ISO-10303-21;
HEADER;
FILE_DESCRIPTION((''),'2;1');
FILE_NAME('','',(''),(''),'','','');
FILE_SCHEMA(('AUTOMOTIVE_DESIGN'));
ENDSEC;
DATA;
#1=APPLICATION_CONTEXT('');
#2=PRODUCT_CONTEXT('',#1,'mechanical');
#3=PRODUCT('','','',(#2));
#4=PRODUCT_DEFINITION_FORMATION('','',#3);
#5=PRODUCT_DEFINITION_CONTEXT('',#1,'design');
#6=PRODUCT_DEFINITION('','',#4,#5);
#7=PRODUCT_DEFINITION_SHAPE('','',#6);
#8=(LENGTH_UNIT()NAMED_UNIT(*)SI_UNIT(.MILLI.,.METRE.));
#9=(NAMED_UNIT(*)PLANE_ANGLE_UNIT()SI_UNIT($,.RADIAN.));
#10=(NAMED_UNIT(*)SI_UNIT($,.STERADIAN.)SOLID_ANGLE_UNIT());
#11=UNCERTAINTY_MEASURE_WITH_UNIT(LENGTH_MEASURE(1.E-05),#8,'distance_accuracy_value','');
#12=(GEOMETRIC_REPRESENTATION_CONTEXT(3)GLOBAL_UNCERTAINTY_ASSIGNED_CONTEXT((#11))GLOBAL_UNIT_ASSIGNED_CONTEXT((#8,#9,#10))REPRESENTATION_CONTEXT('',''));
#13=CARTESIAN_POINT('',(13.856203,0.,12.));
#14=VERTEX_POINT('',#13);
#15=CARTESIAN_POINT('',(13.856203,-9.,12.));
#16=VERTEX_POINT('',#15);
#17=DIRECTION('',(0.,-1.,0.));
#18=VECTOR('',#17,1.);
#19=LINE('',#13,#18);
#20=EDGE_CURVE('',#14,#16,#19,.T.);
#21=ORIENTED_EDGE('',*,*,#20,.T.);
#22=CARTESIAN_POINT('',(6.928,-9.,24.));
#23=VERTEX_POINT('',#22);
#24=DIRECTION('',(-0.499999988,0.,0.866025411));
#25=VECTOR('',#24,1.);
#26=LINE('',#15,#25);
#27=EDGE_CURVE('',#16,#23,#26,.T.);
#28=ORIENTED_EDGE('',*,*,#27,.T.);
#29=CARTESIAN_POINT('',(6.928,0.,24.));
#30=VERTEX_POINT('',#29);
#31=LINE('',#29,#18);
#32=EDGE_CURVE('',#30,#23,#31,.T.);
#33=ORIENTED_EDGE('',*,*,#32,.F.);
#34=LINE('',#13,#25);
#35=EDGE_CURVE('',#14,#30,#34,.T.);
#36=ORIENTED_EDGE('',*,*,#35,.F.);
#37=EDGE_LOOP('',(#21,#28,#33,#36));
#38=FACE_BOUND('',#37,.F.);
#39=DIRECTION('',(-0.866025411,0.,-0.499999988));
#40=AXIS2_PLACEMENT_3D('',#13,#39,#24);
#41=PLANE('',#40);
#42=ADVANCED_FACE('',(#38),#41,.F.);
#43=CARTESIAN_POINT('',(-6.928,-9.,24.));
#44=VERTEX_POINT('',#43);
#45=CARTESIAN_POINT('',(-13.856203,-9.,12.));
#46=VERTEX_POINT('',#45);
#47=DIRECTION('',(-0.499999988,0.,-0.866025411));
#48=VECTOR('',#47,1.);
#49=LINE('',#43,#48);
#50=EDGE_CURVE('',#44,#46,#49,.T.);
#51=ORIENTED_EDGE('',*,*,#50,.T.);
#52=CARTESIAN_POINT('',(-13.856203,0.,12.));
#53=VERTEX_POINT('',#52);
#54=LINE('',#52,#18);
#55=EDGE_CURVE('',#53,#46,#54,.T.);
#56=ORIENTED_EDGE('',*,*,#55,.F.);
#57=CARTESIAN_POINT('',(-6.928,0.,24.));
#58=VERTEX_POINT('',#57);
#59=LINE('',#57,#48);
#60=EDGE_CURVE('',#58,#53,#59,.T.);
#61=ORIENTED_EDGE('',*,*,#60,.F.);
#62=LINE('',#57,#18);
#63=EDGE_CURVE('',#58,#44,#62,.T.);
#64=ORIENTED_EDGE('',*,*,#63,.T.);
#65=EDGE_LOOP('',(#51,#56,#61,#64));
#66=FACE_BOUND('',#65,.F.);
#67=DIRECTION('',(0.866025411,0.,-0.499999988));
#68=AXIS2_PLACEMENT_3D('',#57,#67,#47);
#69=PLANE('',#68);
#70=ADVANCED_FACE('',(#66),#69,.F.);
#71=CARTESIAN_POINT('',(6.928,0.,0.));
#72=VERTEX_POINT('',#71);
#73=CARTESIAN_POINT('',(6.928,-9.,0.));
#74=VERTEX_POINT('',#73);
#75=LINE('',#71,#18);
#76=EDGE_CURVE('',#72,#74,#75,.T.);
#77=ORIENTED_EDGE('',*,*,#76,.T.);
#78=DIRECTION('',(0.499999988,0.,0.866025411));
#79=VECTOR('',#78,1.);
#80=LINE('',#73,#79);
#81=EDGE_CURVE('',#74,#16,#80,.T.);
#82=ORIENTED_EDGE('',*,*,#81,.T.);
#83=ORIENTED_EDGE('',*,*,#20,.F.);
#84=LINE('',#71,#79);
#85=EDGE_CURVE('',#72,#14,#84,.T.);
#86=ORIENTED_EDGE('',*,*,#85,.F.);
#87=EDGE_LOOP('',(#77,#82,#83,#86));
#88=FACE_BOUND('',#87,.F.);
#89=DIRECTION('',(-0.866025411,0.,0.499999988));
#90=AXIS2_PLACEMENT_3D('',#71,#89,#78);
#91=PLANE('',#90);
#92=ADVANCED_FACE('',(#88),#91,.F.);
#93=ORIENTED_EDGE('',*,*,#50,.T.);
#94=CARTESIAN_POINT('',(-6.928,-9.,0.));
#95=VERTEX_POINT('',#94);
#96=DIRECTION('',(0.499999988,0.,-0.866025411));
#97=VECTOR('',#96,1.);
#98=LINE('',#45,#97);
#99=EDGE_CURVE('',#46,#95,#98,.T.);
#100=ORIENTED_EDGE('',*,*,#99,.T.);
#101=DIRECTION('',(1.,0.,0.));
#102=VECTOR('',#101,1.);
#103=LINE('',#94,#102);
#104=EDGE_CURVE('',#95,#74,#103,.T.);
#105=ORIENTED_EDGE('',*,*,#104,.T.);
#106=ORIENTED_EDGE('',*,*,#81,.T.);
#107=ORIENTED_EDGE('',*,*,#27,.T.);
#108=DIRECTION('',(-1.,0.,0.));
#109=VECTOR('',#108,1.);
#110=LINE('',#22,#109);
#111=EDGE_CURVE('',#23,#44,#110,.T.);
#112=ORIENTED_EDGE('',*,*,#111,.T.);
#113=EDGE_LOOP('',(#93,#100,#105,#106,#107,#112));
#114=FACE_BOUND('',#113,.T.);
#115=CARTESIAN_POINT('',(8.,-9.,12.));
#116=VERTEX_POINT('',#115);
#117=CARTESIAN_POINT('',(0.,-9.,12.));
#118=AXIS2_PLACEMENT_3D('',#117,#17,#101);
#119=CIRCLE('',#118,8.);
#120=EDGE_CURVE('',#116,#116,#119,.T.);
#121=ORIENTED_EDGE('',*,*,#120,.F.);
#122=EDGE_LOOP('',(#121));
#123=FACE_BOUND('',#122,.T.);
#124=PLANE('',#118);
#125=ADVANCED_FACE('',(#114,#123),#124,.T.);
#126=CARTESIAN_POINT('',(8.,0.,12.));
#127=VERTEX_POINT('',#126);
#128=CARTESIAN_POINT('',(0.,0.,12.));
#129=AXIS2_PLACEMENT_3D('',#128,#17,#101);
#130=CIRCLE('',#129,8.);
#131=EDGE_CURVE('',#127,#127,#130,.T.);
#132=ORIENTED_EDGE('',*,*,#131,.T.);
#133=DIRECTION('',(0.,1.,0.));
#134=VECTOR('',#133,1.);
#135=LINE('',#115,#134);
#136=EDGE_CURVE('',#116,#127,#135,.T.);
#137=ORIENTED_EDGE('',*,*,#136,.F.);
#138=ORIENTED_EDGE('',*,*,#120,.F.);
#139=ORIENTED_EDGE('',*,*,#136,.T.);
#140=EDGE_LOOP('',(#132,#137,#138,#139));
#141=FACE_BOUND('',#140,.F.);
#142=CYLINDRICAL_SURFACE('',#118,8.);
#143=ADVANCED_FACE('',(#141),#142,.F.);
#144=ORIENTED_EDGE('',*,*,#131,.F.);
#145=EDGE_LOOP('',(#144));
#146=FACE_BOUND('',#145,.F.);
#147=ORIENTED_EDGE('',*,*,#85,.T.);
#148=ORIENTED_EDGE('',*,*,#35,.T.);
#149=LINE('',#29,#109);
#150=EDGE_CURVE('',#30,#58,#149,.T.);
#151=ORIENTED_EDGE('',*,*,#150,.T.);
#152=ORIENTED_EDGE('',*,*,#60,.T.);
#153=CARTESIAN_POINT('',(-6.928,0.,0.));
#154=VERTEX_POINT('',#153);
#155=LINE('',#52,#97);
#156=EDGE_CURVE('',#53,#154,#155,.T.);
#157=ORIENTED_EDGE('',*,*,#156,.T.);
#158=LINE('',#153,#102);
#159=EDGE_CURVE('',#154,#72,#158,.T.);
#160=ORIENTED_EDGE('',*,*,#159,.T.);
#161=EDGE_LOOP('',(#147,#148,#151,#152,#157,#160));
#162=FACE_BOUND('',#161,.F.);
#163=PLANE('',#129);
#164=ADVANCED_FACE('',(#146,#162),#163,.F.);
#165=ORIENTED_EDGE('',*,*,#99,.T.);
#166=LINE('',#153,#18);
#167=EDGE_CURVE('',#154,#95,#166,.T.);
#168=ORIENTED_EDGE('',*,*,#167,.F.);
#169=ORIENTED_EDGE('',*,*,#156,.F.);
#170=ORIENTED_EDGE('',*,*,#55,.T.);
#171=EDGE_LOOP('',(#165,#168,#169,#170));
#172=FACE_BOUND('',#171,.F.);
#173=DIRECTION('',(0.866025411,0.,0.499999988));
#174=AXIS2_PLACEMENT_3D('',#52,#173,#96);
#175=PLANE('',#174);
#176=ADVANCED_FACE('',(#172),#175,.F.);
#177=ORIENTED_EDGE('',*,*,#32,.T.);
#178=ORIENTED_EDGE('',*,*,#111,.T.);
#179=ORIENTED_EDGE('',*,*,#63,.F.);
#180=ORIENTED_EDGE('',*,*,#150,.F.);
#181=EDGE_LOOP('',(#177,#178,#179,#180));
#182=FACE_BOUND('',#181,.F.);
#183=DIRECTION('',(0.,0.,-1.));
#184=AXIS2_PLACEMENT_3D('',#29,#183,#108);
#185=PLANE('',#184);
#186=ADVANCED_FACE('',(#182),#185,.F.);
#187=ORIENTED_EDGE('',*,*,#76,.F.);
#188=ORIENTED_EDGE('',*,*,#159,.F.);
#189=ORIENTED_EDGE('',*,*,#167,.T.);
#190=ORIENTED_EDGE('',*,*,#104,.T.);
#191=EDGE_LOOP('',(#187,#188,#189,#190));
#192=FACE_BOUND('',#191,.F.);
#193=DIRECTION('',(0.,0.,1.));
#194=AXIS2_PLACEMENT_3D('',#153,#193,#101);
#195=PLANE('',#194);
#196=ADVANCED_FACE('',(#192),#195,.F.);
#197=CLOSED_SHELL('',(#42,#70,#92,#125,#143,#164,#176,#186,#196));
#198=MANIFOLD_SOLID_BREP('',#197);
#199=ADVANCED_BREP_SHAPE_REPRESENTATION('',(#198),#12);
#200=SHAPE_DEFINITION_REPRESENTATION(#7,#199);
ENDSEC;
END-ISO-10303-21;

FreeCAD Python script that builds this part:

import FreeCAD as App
import Part
import Sketcher

V = App.Vector
Q = App.Units.Quantity

doc = App.newDocument("Part")
params = doc.addObject("Spreadsheet::Sheet", "Params")
for row, (alias, value) in enumerate([
    ("pad1_length", "9 mm"),
    ("sketch2_diameter", "16 mm"),
], start=1):
    params.set(f"A{row}", alias)
    params.set(f"B{row}", "=" + value)
    params.setAlias(f"B{row}", alias)

body = doc.addObject("PartDesign::Body", "Body")

# Sketch on XZ plane
sketch1 = body.newObject("Sketcher::SketchObject", "Sketch")
sketch1.AttachmentSupport = (doc.getObject("XZ_Plane"), [""])
sketch1.MapMode = "FlatFace"
sketch1.addGeometry([
    Part.LineSegment(V(-14, 12, 0), V(-7, 0, 0)),  # 0
    Part.LineSegment(V(-7, 0, 0), V(7, 0, 0)),  # 1
    Part.LineSegment(V(7, 0, 0), V(14, 12, 0)),  # 2
    Part.LineSegment(V(14, 12, 0), V(7, 24, 0)),  # 3
    Part.LineSegment(V(7, 24, 0), V(-7, 24, 0)),  # 4
    Part.LineSegment(V(-7, 24, 0), V(-14, 12, 0)),  # 5
], False)
sketch1.addConstraint([
    Sketcher.Constraint("Coincident", 0, 2, 1, 1),
    Sketcher.Constraint("Coincident", 1, 2, 2, 1),
    Sketcher.Constraint("Coincident", 2, 2, 3, 1),
    Sketcher.Constraint("Coincident", 3, 2, 4, 1),
    Sketcher.Constraint("Coincident", 4, 2, 5, 1),
    Sketcher.Constraint("Coincident", 5, 2, 0, 1),
    Sketcher.Constraint("Horizontal", 1),
    Sketcher.Constraint("Horizontal", 4),
    Sketcher.Constraint("Symmetric", 0, 2, 1, 2, -1, 1),
    Sketcher.Constraint("Symmetric", 2, 2, 5, 2, -2),
    Sketcher.Constraint("Parallel", 0, 3),
    Sketcher.Constraint("Parallel", 2, 5),
    Sketcher.Constraint("Vertical", 1, 2, 3, 2),
    Sketcher.Constraint("Angle", 0, Q("-60.000001 deg")),
    Sketcher.Constraint("DistanceY", -1, 1, 2, 2, 12.0),
    Sketcher.Constraint("DistanceX", 1, 1, 1, 2, 13.856),
])
pad1 = body.newObject("PartDesign::Pad", "Pad")
pad1.Profile = sketch1
pad1.setExpression("Length", "Params.pad1_length")

# Sketch on XZ plane
sketch2 = body.newObject("Sketcher::SketchObject", "Sketch001")
sketch2.AttachmentSupport = (doc.getObject("XZ_Plane"), [""])
sketch2.MapMode = "FlatFace"
sketch2.AttachmentOffset = App.Placement(V(0, 0, 9), App.Rotation())
sketch2.addGeometry(Part.Circle(V(0, 12, 0), V(0, 0, 1), 8), False)
sketch2.addConstraint([
    Sketcher.Constraint("PointOnObject", 0, 3, -2),
    Sketcher.Constraint("Diameter", 0, 16.0),
    Sketcher.Constraint("DistanceY", -1, 1, 0, 3, 12.0),
])
sketch2.setExpression("Constraints[1]", "Params.sketch2_diameter")
pocket1 = body.newObject("PartDesign::Pocket", "Pocket")
pocket1.Profile = sketch2
pocket1.Type = "ThroughAll"

doc.recompute()
